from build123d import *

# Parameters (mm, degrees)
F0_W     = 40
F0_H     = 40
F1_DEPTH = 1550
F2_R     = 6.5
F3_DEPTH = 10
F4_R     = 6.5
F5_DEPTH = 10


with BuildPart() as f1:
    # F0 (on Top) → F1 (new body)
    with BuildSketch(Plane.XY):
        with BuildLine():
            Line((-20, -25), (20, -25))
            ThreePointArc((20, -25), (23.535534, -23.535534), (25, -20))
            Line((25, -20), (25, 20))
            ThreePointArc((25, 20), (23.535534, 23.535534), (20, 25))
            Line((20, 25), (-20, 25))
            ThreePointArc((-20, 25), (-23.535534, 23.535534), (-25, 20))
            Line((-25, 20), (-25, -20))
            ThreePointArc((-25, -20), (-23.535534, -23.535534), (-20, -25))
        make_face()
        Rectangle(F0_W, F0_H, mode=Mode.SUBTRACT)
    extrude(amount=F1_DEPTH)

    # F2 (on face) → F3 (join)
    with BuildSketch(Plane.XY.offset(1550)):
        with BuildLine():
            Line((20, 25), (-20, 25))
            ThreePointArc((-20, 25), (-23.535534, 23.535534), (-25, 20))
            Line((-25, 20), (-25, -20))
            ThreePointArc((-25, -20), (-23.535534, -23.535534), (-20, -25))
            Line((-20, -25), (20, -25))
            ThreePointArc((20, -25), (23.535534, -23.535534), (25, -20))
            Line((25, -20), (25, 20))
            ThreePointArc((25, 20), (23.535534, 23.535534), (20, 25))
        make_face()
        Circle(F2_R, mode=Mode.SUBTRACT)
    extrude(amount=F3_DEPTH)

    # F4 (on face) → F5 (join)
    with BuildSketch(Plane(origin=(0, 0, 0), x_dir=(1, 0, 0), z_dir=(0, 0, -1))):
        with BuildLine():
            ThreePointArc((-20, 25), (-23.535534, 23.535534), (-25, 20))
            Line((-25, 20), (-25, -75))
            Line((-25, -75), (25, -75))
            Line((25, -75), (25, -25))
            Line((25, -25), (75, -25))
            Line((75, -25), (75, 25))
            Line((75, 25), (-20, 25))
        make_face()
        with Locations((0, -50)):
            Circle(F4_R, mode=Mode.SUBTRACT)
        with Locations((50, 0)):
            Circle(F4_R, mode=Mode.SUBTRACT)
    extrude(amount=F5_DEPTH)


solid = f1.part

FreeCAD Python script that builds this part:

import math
import FreeCAD as App
import Part
import Sketcher
from FreeCAD import Vector
Q = App.Units.Quantity


def add_polygon(sketch, points):
    """Adds a closed chain of lines whose ends are joined by coincident constraints."""
    first, n = sketch.GeometryCount, len(points)
    for a, b in zip(points, points[1:] + points[:1]):
        sketch.addGeometry(Part.LineSegment(App.Vector(*a, 0), App.Vector(*b, 0)), False)
    for i in range(n):
        sketch.addConstraint(Sketcher.Constraint("Coincident", first + i, 2, first + (i + 1) % n, 1))

doc = App.newDocument("Part")
params = doc.addObject("Spreadsheet::Sheet", "Params")
for row, (alias, value) in enumerate([
    ("sketch1_radius", "5 mm"),
    ("sketch1_width", "40 mm"),
    ("pad1_length", "1550 mm"),
    ("sketch2_diameter", "13 mm"),
    ("sketch2_radius", "5 mm"),
    ("sketch2_width", "40 mm"),
    ("pad2_length", "10 mm"),
    ("sketch3_diameter", "13 mm"),
    ("sketch3_radius", "5 mm"),
    ("sketch3_width", "50 mm"),
    ("pad3_length", "10 mm"),
], start=1):
    params.set(f"A{row}", alias)
    params.set(f"B{row}", "=" + value)
    params.setAlias(f"B{row}", alias)

body = doc.addObject("PartDesign::Body", "Body")

# Sketch on XY plane
sketch1 = body.newObject("Sketcher::SketchObject", "Sketch")
sketch1.AttachmentSupport = (doc.getObject("XY_Plane"), [""])
sketch1.MapMode = "FlatFace"
sketch1.addGeometry(Part.LineSegment(Vector(-20, -25, 0), Vector(20, -25, 0)), False)  # 0
sketch1.addGeometry(Part.ArcOfCircle(Part.Circle(Vector(20, -20, 0), Vector(0, 0, 1), 5), math.radians(-90), math.radians(0)), False)  # 1
sketch1.addGeometry(Part.LineSegment(Vector(25, -20, 0), Vector(25, 20, 0)), False)  # 2
sketch1.addGeometry(Part.ArcOfCircle(Part.Circle(Vector(20, 20, 0), Vector(0, 0, 1), 5), math.radians(0), math.radians(90)), False)  # 3
sketch1.addGeometry(Part.LineSegment(Vector(20, 25, 0), Vector(-20, 25, 0)), False)  # 4
sketch1.addGeometry(Part.ArcOfCircle(Part.Circle(Vector(-20, 20, 0), Vector(0, 0, 1), 5), math.radians(90), math.radians(180)), False)  # 5
sketch1.addGeometry(Part.LineSegment(Vector(-25, 20, 0), Vector(-25, -20, 0)), False)  # 6
sketch1.addGeometry(Part.ArcOfCircle(Part.Circle(Vector(-20, -20, 0), Vector(0, 0, 1), 5), math.radians(180), math.radians(270)), False)  # 7
add_polygon(sketch1, [(20, -20), (-20, -20), (-20, 20), (20, 20)])  # lines 8-11
sketch1.addConstraint(Sketcher.Constraint("Tangent", 0, 2, 1, 1))
sketch1.addConstraint(Sketcher.Constraint("Tangent", 1, 2, 2, 1))
sketch1.addConstraint(Sketcher.Constraint("Tangent", 2, 2, 3, 1))
sketch1.addConstraint(Sketcher.Constraint("Tangent", 3, 2, 4, 1))
sketch1.addConstraint(Sketcher.Constraint("Tangent", 4, 2, 5, 1))
sketch1.addConstraint(Sketcher.Constraint("Tangent", 5, 2, 6, 1))
sketch1.addConstraint(Sketcher.Constraint("Tangent", 6, 2, 7, 1))
sketch1.addConstraint(Sketcher.Constraint("Tangent", 7, 2, 0, 1))
sketch1.addConstraint(Sketcher.Constraint("Horizontal", 0))
sketch1.addConstraint(Sketcher.Constraint("Vertical", 2))
sketch1.addConstraint(Sketcher.Constraint("Horizontal", 4))
sketch1.addConstraint(Sketcher.Constraint("Vertical", 6))
sketch1.addConstraint(Sketcher.Constraint("Horizontal", 8))
sketch1.addConstraint(Sketcher.Constraint("Vertical", 9))
sketch1.addConstraint(Sketcher.Constraint("Horizontal", 10))
sketch1.addConstraint(Sketcher.Constraint("Vertical", 11))
sketch1.addConstraint(Sketcher.Constraint("Coincident", 8, 2, 7, 3))
sketch1.addConstraint(Sketcher.Constraint("Coincident", 9, 2, 5, 3))
sketch1.addConstraint(Sketcher.Constraint("Coincident", 10, 2, 3, 3))
sketch1.addConstraint(Sketcher.Constraint("Equal", 1, 3))
sketch1.addConstraint(Sketcher.Constraint("Symmetric", 1, 3, 5, 3, -1, 1))
sketch1.addConstraint(Sketcher.Constraint("Equal", 10, 2))
sketch1.addConstraint(Sketcher.Constraint("Radius", 1, Q("5 mm")))
sketch1.addConstraint(Sketcher.Constraint("DistanceX", 0, 1, 0, 2, Q("40 mm")))
sketch1.setExpression("Constraints[26]", "Params.sketch1_radius")
sketch1.setExpression("Constraints[27]", "Params.sketch1_width")
pad1 = body.newObject("PartDesign::Pad", "Pad")
pad1.Profile = sketch1
pad1.setExpression("Length", "Params.pad1_length")

# Sketch on XY plane
sketch2 = body.newObject("Sketcher::SketchObject", "Sketch001")
sketch2.AttachmentSupport = (doc.getObject("XY_Plane"), [""])
sketch2.MapMode = "FlatFace"
sketch2.AttachmentOffset = App.Placement(Vector(0, 0, 1550), App.Rotation())
sketch2.addGeometry(Part.LineSegment(Vector(20, 25, 0), Vector(-20, 25, 0)), False)
sketch2.addGeometry(Part.ArcOfCircle(Part.Circle(Vector(-20, 20, 0), Vector(0, 0, 1), 5), math.radians(90), math.radians(180)), False)
sketch2.addGeometry(Part.LineSegment(Vector(-25, 20, 0), Vector(-25, -20, 0)), False)
sketch2.addGeometry(Part.ArcOfCircle(Part.Circle(Vector(-20, -20, 0), Vector(0, 0, 1), 5), math.radians(180), math.radians(270)), False)
sketch2.addGeometry(Part.LineSegment(Vector(-20, -25, 0), Vector(20, -25, 0)), False)
sketch2.addGeometry(Part.ArcOfCircle(Part.Circle(Vector(20, -20, 0), Vector(0, 0, 1), 5), math.radians(-90), math.radians(0)), False)
sketch2.addGeometry(Part.LineSegment(Vector(25, -20, 0), Vector(25, 20, 0)), False)
sketch2.addGeometry(Part.ArcOfCircle(Part.Circle(Vector(20, 20, 0), Vector(0, 0, 1), 5), math.radians(0), math.radians(90)), False)
sketch2.addGeometry(Part.Circle(Vector(0, 0, 0), Vector(0, 0, 1), 6.5), False)
sketch2.addConstraint(Sketcher.Constraint("Tangent", 0, 2, 1, 1))
sketch2.addConstraint(Sketcher.Constraint("Tangent", 1, 2, 2, 1))
sketch2.addConstraint(Sketcher.Constraint("Tangent", 2, 2, 3, 1))
sketch2.addConstraint(Sketcher.Constraint("Tangent", 3, 2, 4, 1))
sketch2.addConstraint(Sketcher.Constraint("Tangent", 4, 2, 5, 1))
sketch2.addConstraint(Sketcher.Constraint("Tangent", 5, 2, 6, 1))
sketch2.addConstraint(Sketcher.Constraint("Tangent", 6, 2, 7, 1))
sketch2.addConstraint(Sketcher.Constraint("Tangent", 7, 2, 0, 1))
sketch2.addConstraint(Sketcher.Constraint("Horizontal", 0))
sketch2.addConstraint(Sketcher.Constraint("Vertical", 2))
sketch2.addConstraint(Sketcher.Constraint("Horizontal", 4))
sketch2.addConstraint(Sketcher.Constraint("Vertical", 6))
sketch2.addConstraint(Sketcher.Constraint("Coincident", 8, 3, -1, 1))
sketch2.addConstraint(Sketcher.Constraint("Equal", 1, 3))
sketch2.addConstraint(Sketcher.Constraint("Equal", 3, 5))
sketch2.addConstraint(Sketcher.Constraint("Equal", 5, 7))
sketch2.addConstraint(Sketcher.Constraint("Symmetric", 1, 3, 5, 3, -1, 1))
sketch2.addConstraint(Sketcher.Constraint("Equal", 4, 2))
sketch2.addConstraint(Sketcher.Constraint("Diameter", 8, Q("13 mm")))
sketch2.addConstraint(Sketcher.Constraint("Radius", 1, Q("5 mm")))
sketch2.addConstraint(Sketcher.Constraint("DistanceX", 0, 2, 0, 1, Q("40 mm")))
sketch2.setExpression("Constraints[18]", "Params.sketch2_diameter")
sketch2.setExpression("Constraints[19]", "Params.sketch2_radius")
sketch2.setExpression("Constraints[20]", "Params.sketch2_width")
pad2 = body.newObject("PartDesign::Pad", "Pad001")
pad2.Profile = sketch2
pad2.setExpression("Length", "Params.pad2_length")

# Sketch on XY plane
sketch3 = body.newObject("Sketcher::SketchObject", "Sketch002")
sketch3.AttachmentSupport = (doc.getObject("XY_Plane"), [""])
sketch3.MapMode = "FlatFace"
sketch3.addGeometry(Part.ArcOfCircle(Part.Circle(Vector(-20, -20, 0), Vector(0, 0, 1), 5), math.radians(180), math.radians(270)), False)
sketch3.addGeometry(Part.LineSegment(Vector(-25, -20, 0), Vector(-25, 75, 0)), False)
sketch3.addGeometry(Part.LineSegment(Vector(-25, 75, 0), Vector(25, 75, 0)), False)
sketch3.addGeometry(Part.LineSegment(Vector(25, 75, 0), Vector(25, 25, 0)), False)
sketch3.addGeometry(Part.LineSegment(Vector(25, 25, 0), Vector(75, 25, 0)), False)
sketch3.addGeometry(Part.LineSegment(Vector(75, 25, 0), Vector(75, -25, 0)), False)
sketch3.addGeometry(Part.LineSegment(Vector(75, -25, 0), Vector(-20, -25, 0)), False)
sketch3.addGeometry(Part.Circle(Vector(0, 50, 0), Vector(0, 0, 1), 6.5), False)
sketch3.addGeometry(Part.Circle(Vector(50, 0, 0), Vector(0, 0, 1), 6.5), False)
sketch3.addConstraint(Sketcher.Constraint("Tangent", 0, 1, 1, 1))
sketch3.addConstraint(Sketcher.Constraint("Coincident", 1, 2, 2, 1))
sketch3.addConstraint(Sketcher.Constraint("Coincident", 2, 2, 3, 1))
sketch3.addConstraint(Sketcher.Constraint("Coincident", 3, 2, 4, 1))
sketch3.addConstraint(Sketcher.Constraint("Coincident", 4, 2, 5, 1))
sketch3.addConstraint(Sketcher.Constraint("Coincident", 5, 2, 6, 1))
sketch3.addConstraint(Sketcher.Constraint("Tangent", 6, 2, 0, 2))
sketch3.addConstraint(Sketcher.Constraint("Vertical", 1))
sketch3.addConstraint(Sketcher.Constraint("Horizontal", 2))
sketch3.addConstraint(Sketcher.Constraint("Vertical", 3))
sketch3.addConstraint(Sketcher.Constraint("Horizontal", 4))
sketch3.addConstraint(Sketcher.Constraint("Vertical", 5))
sketch3.addConstraint(Sketcher.Constraint("Horizontal", 6))
sketch3.addConstraint(Sketcher.Constraint("Equal", 7, 8))
sketch3.addConstraint(Sketcher.Constraint("PointOnObject", 7, 3, -2))
sketch3.addConstraint(Sketcher.Constraint("PointOnObject", 8, 3, -1))
sketch3.addConstraint(Sketcher.Constraint("Equal", 2, 4))
sketch3.addConstraint(Sketcher.Constraint("Equal", 6, 1))
sketch3.addConstraint(Sketcher.Constraint("Equal", 4, 3))
sketch3.addConstraint(Sketcher.Constraint("Diameter", 7, Q("13 mm")))
sketch3.addConstraint(Sketcher.Constraint("Radius", 0, Q("5 mm")))
sketch3.addConstraint(Sketcher.Constraint("DistanceX", 2, 1, 2, 2, Q("50 mm")))
sketch3.addConstraint(Sketcher.Constraint("DistanceX", 0, 3, -1, 1, Q("20 mm")))
sketch3.addConstraint(Sketcher.Constraint("DistanceY", 0, 3, -1, 1, Q("20 mm")))
sketch3.addConstraint(Sketcher.Constraint("DistanceY", -1, 1, 7, 3, Q("50 mm")))
sketch3.addConstraint(Sketcher.Constraint("DistanceX", -1, 1, 8, 3, Q("50 mm")))
sketch3.setExpression("Constraints[19]", "Params.sketch3_diameter")
sketch3.setExpression("Constraints[20]", "Params.sketch3_radius")
sketch3.setExpression("Constraints[21]", "Params.sketch3_width")
pad3 = body.newObject("PartDesign::Pad", "Pad002")
pad3.Profile = sketch3
pad3.setExpression("Length", "Params.pad3_length")
pad3.Reversed = True

doc.recompute()
